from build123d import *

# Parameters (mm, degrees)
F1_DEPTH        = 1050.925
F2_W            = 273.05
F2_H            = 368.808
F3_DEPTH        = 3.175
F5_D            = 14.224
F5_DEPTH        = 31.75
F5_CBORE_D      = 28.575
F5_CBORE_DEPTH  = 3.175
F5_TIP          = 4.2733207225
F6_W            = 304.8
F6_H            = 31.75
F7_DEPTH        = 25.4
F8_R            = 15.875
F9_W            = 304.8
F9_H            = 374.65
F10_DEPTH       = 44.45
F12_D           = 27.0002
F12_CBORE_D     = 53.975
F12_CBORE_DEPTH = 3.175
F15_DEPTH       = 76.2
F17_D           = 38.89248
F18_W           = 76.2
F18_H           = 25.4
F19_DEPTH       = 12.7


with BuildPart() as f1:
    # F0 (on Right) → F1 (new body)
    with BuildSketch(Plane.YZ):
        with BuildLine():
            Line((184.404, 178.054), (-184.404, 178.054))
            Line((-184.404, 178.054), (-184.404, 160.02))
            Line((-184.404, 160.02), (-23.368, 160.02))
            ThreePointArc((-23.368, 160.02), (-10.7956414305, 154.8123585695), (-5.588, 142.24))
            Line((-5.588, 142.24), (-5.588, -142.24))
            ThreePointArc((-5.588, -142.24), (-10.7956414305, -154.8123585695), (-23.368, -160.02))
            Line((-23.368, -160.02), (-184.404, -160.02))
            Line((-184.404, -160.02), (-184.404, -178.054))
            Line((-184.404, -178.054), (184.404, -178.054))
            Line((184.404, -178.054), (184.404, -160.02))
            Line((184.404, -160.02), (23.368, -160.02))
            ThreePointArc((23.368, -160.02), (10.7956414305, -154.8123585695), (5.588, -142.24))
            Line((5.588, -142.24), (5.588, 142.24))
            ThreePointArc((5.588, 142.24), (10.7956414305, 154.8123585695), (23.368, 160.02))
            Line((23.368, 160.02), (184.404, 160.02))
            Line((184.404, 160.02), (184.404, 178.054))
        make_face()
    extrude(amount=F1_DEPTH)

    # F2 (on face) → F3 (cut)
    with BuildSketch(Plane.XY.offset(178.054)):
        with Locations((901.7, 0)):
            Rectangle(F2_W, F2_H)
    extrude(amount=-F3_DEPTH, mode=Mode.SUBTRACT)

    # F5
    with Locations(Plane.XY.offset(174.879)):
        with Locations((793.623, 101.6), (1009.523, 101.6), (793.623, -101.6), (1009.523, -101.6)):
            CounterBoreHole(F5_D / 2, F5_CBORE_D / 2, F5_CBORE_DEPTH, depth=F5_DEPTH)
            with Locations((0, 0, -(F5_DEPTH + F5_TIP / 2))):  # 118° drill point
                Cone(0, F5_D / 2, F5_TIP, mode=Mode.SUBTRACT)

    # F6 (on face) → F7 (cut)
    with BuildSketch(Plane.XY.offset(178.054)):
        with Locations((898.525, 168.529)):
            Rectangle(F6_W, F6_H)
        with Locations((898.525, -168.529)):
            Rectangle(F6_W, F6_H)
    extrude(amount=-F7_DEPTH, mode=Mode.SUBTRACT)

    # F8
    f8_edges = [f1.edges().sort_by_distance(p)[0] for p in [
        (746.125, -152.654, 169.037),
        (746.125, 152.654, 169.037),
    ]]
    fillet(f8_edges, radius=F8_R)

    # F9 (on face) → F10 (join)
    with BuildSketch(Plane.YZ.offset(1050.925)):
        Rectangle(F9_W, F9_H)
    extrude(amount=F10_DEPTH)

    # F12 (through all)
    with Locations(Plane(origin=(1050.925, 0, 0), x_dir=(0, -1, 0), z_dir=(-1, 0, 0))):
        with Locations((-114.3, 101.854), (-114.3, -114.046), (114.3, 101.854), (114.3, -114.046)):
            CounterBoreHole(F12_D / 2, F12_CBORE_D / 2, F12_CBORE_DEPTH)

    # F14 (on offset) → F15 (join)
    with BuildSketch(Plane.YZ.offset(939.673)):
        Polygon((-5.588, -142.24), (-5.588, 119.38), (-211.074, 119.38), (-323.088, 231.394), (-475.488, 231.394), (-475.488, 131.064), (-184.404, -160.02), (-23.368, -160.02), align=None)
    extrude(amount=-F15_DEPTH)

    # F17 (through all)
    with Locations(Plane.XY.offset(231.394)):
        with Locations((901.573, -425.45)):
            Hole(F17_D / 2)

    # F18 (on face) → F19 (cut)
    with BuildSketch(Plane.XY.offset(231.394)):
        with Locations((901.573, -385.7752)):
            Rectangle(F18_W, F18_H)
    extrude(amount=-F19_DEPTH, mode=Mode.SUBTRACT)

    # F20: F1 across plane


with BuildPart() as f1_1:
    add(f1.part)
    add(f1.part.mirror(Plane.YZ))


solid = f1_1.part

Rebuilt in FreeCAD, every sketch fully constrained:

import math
import FreeCAD as App
import Part
import Sketcher

V = App.Vector
Q = App.Units.Quantity


def edges_at(feature, points):
    """Names of the edges that pass closest to the given points."""
    edges = feature.Shape.Edges
    near = lambda p: min(range(len(edges)), key=lambda i: edges[i].distToShape(Part.Vertex(*p))[0])
    return sorted({f"Edge{near(p) + 1}" for p in points})


def add_polygon(sketch, points):
    """Adds a closed chain of lines whose ends are joined by coincident constraints."""
    first, n = sketch.GeometryCount, len(points)
    for a, b in zip(points, points[1:] + points[:1]):
        sketch.addGeometry(Part.LineSegment(App.Vector(*a, 0), App.Vector(*b, 0)), False)
    for i in range(n):
        sketch.addConstraint(Sketcher.Constraint("Coincident", first + i, 2, first + (i + 1) % n, 1))

doc = App.newDocument("Part")
body = doc.addObject("PartDesign::Body", "Body")

sketch1 = body.newObject("Sketcher::SketchObject", "Sketch")
sketch1.AttachmentSupport = (doc.getObject("YZ_Plane"), [""])
sketch1.MapMode = "FlatFace"
sketch1.addGeometry(Part.LineSegment(V(184, 178, 0), V(-184, 178, 0)), False)
sketch1.addGeometry(Part.LineSegment(V(-184, 178, 0), V(-184, 160, 0)), False)
sketch1.addGeometry(Part.LineSegment(V(-184, 160, 0), V(-23, 160, 0)), False)
sketch1.addGeometry(Part.ArcOfCircle(Part.Circle(V(-23, 142, 0), V(0, 0, 1), 18), math.radians(0), math.radians(90)), False)
sketch1.addGeometry(Part.LineSegment(V(-6, 142, 0), V(-6, -142, 0)), False)
sketch1.addGeometry(Part.ArcOfCircle(Part.Circle(V(-23, -142, 0), V(0, 0, 1), 18), math.radians(-90), math.radians(0)), False)
sketch1.addGeometry(Part.LineSegment(V(-23, -160, 0), V(-184, -160, 0)), False)
sketch1.addGeometry(Part.LineSegment(V(-184, -160, 0), V(-184, -178, 0)), False)
sketch1.addGeometry(Part.LineSegment(V(-184, -178, 0), V(184, -178, 0)), False)
sketch1.addGeometry(Part.LineSegment(V(184, -178, 0), V(184, -160, 0)), False)
sketch1.addGeometry(Part.LineSegment(V(184, -160, 0), V(23, -160, 0)), False)
sketch1.addGeometry(Part.ArcOfCircle(Part.Circle(V(23, -142, 0), V(0, 0, 1), 18), math.radians(180), math.radians(270)), False)
sketch1.addGeometry(Part.LineSegment(V(6, -142, 0), V(6, 142, 0)), False)
sketch1.addGeometry(Part.ArcOfCircle(Part.Circle(V(23, 142, 0), V(0, 0, 1), 18), math.radians(90), math.radians(180)), False)
sketch1.addGeometry(Part.LineSegment(V(23, 160, 0), V(184, 160, 0)), False)
sketch1.addGeometry(Part.LineSegment(V(184, 160, 0), V(184, 178, 0)), False)
sketch1.addConstraint(Sketcher.Constraint("Coincident", 0, 2, 1, 1))
sketch1.addConstraint(Sketcher.Constraint("Coincident", 1, 2, 2, 1))
sketch1.addConstraint(Sketcher.Constraint("Tangent", 2, 2, 3, 2))
sketch1.addConstraint(Sketcher.Constraint("Tangent", 3, 1, 4, 1))
sketch1.addConstraint(Sketcher.Constraint("Tangent", 4, 2, 5, 2))
sketch1.addConstraint(Sketcher.Constraint("Tangent", 5, 1, 6, 1))
sketch1.addConstraint(Sketcher.Constraint("Coincident", 6, 2, 7, 1))
sketch1.addConstraint(Sketcher.Constraint("Coincident", 7, 2, 8, 1))
sketch1.addConstraint(Sketcher.Constraint("Coincident", 8, 2, 9, 1))
sketch1.addConstraint(Sketcher.Constraint("Coincident", 9, 2, 10, 1))
sketch1.addConstraint(Sketcher.Constraint("Tangent", 10, 2, 11, 2))
sketch1.addConstraint(Sketcher.Constraint("Tangent", 11, 1, 12, 1))
sketch1.addConstraint(Sketcher.Constraint("Tangent", 12, 2, 13, 2))
sketch1.addConstraint(Sketcher.Constraint("Tangent", 13, 1, 14, 1))
sketch1.addConstraint(Sketcher.Constraint("Coincident", 14, 2, 15, 1))
sketch1.addConstraint(Sketcher.Constraint("Coincident", 15, 2, 0, 1))
sketch1.addConstraint(Sketcher.Constraint("Horizontal", 0))
sketch1.addConstraint(Sketcher.Constraint("Vertical", 1))
sketch1.addConstraint(Sketcher.Constraint("Horizontal", 2))
sketch1.addConstraint(Sketcher.Constraint("Vertical", 4))
sketch1.addConstraint(Sketcher.Constraint("Horizontal", 6))
sketch1.addConstraint(Sketcher.Constraint("Vertical", 7))
sketch1.addConstraint(Sketcher.Constraint("Horizontal", 8))
sketch1.addConstraint(Sketcher.Constraint("Vertical", 9))
sketch1.addConstraint(Sketcher.Constraint("Horizontal", 10))
sketch1.addConstraint(Sketcher.Constraint("Vertical", 12))
sketch1.addConstraint(Sketcher.Constraint("Horizontal", 14))
sketch1.addConstraint(Sketcher.Constraint("Vertical", 15))
sketch1.addConstraint(Sketcher.Constraint("Equal", 3, 5))
sketch1.addConstraint(Sketcher.Constraint("Equal", 5, 11))
sketch1.addConstraint(Sketcher.Constraint("Equal", 11, 13))
sketch1.addConstraint(Sketcher.Constraint("Symmetric", 3, 3, 11, 3, -1, 1))
sketch1.addConstraint(Sketcher.Constraint("Symmetric", 0, 2, 8, 2, -1, 1))
sketch1.addConstraint(Sketcher.Constraint("Symmetric", 6, 2, 14, 2, -1, 1))
sketch1.addConstraint(Sketcher.Constraint("Symmetric", 6, 2, 9, 2, -2))
sketch1.addConstraint(Sketcher.Constraint("Radius", 3, Q("0.7 in")))
sketch1.addConstraint(Sketcher.Constraint("DistanceY", 4, 2, 4, 1, Q("11.2 in")))
sketch1.addConstraint(Sketcher.Constraint("DistanceX", 0, 2, 0, 1, Q("14.52 in")))
sketch1.addConstraint(Sketcher.Constraint("DistanceX", 2, 1, 2, 2, Q("6.34 in")))
sketch1.addConstraint(Sketcher.Constraint("DistanceY", 1, 2, 1, 1, Q("0.71 in")))
pad1 = body.newObject("PartDesign::Pad", "Pad")
pad1.Profile = sketch1
pad1.Length = Q("41.375 in")

sketch2 = body.newObject("Sketcher::SketchObject", "Sketch001")
sketch2.AttachmentSupport = (doc.getObject("XY_Plane"), [""])
sketch2.MapMode = "FlatFace"
sketch2.AttachmentOffset = App.Placement(V(0, 0, 7.01 * 25.4), App.Rotation())
add_polygon(sketch2, [(765, 184), (765, -184), (1038, -184), (1038, 184)])
sketch2.addConstraint(Sketcher.Constraint("Vertical", 0))
sketch2.addConstraint(Sketcher.Constraint("Horizontal", 1))
sketch2.addConstraint(Sketcher.Constraint("Vertical", 2))
sketch2.addConstraint(Sketcher.Constraint("Horizontal", 3))
sketch2.addConstraint(Sketcher.Constraint("DistanceX", 1, 1, 1, 2, Q("10.75 in")))
sketch2.addConstraint(Sketcher.Constraint("DistanceY", 0, 2, 0, 1, Q("14.52 in")))
sketch2.addConstraint(Sketcher.Constraint("DistanceY", 0, 2, -1, 1, Q("7.26 in")))
sketch2.addConstraint(Sketcher.Constraint("DistanceX", -1, 1, 0, 2, Q("30.125 in")))
pocket1 = body.newObject("PartDesign::Pocket", "Pocket")
pocket1.Profile = sketch2
pocket1.Length = Q("0.125 in")

sketch3 = body.newObject("Sketcher::SketchObject", "Sketch002")
sketch3.AttachmentSupport = (doc.getObject("XY_Plane"), [""])
sketch3.MapMode = "FlatFace"
sketch3.AttachmentOffset = App.Placement(V(0, 0, 6.885 * 25.4), App.Rotation())
sketch3.addGeometry(Part.Circle(V(794, 102, 0), V(0, 0, 1), 7), False)
sketch3.addGeometry(Part.Circle(V(1010, 102, 0), V(0, 0, 1), 7), False)
sketch3.addGeometry(Part.Circle(V(794, -102, 0), V(0, 0, 1), 7), False)
sketch3.addGeometry(Part.Circle(V(1010, -102, 0), V(0, 0, 1), 7), False)
sketch3.addConstraint(Sketcher.Constraint("Equal", 0, 1))
sketch3.addConstraint(Sketcher.Constraint("Equal", 1, 2))
sketch3.addConstraint(Sketcher.Constraint("Equal", 2, 3))
sketch3.addConstraint(Sketcher.Constraint("Symmetric", 0, 3, 2, 3, -1))
sketch3.addConstraint(Sketcher.Constraint("Symmetric", 1, 3, 3, 3, -1))
sketch3.addConstraint(Sketcher.Constraint("Horizontal", 0, 3, 1, 3))
sketch3.addConstraint(Sketcher.Constraint("Diameter", 0, Q("0.56 in")))
sketch3.addConstraint(Sketcher.Constraint("DistanceY", -1, 1, 0, 3, Q("4 in")))
sketch3.addConstraint(Sketcher.Constraint("DistanceX", 0, 3, 1, 3, Q("8.5 in")))
sketch3.addConstraint(Sketcher.Constraint("DistanceX", -1, 1, 0, 3, Q("31.245 in")))
doc.recompute()
hole = body.newObject("PartDesign::Hole", "Hole")
hole.Profile = sketch3
hole.ThreadType = "None"
hole.Diameter = Q("0.56 in")
hole.DepthType = "Dimension"
hole.Depth = Q("1.25 in")
hole.DrillPoint = "Angled"
hole.DrillPointAngle = 118
hole.HoleCutType = "Counterbore"
hole.HoleCutDiameter = Q("1.125 in")
hole.HoleCutDepth = Q("0.125 in")

sketch4 = body.newObject("Sketcher::SketchObject", "Sketch003")
sketch4.AttachmentSupport = (doc.getObject("XY_Plane"), [""])
sketch4.MapMode = "FlatFace"
sketch4.AttachmentOffset = App.Placement(V(0, 0, 7.01 * 25.4), App.Rotation())
add_polygon(sketch4, [(746, 184), (746, 153), (1051, 153), (1051, 184)])
add_polygon(sketch4, [(746, -153), (746, -184), (1051, -184), (1051, -153)])
sketch4.addConstraint(Sketcher.Constraint("Vertical", 0))
sketch4.addConstraint(Sketcher.Constraint("Horizontal", 1))
sketch4.addConstraint(Sketcher.Constraint("Vertical", 2))
sketch4.addConstraint(Sketcher.Constraint("Horizontal", 3))
sketch4.addConstraint(Sketcher.Constraint("Vertical", 4))
sketch4.addConstraint(Sketcher.Constraint("Horizontal", 5))
sketch4.addConstraint(Sketcher.Constraint("Vertical", 6))
sketch4.addConstraint(Sketcher.Constraint("Horizontal", 7))
sketch4.addConstraint(Sketcher.Constraint("Symmetric", 3, 2, 4, 2, -1))
sketch4.addConstraint(Sketcher.Constraint("Symmetric", 1, 2, 6, 2, -1))
sketch4.addConstraint(Sketcher.Constraint("DistanceX", 1, 1, 1, 2, Q("12 in")))
sketch4.addConstraint(Sketcher.Constraint("DistanceY", 0, 2, 0, 1, Q("1.25 in")))
sketch4.addConstraint(Sketcher.Constraint("DistanceY", -1, 1, 0, 2, Q("6.01 in")))
sketch4.addConstraint(Sketcher.Constraint("DistanceX", -1, 1, 0, 2, Q("29.375 in")))
pocket2 = body.newObject("PartDesign::Pocket", "Pocket001")
pocket2.Profile = sketch4
pocket2.Length = Q("1 in")
doc.recompute()

fillet = body.newObject("PartDesign::Fillet", "Fillet")
fillet.Base = (pocket2, edges_at(pocket2, [(746.125, -152.654, 169.037), (746.125, 152.654, 169.037)]))
fillet.Radius = Q("0.625 in")

sketch5 = body.newObject("Sketcher::SketchObject", "Sketch004")
sketch5.AttachmentSupport = (doc.getObject("YZ_Plane"), [""])
sketch5.MapMode = "FlatFace"
sketch5.AttachmentOffset = App.Placement(V(0, 0, 41.375 * 25.4), App.Rotation())
add_polygon(sketch5, [(-152, 187), (-152, -187), (152, -187), (152, 187)])
sketch5.addConstraint(Sketcher.Constraint("Vertical", 0))
sketch5.addConstraint(Sketcher.Constraint("Horizontal", 1))
sketch5.addConstraint(Sketcher.Constraint("Vertical", 2))
sketch5.addConstraint(Sketcher.Constraint("Horizontal", 3))
sketch5.addConstraint(Sketcher.Constraint("Symmetric", 0, 2, 2, 2, -1, 1))
sketch5.addConstraint(Sketcher.Constraint("DistanceX", 1, 1, 1, 2, Q("12 in")))
sketch5.addConstraint(Sketcher.Constraint("DistanceY", 0, 2, 0, 1, Q("14.75 in")))
pad2 = body.newObject("PartDesign::Pad", "Pad001")
pad2.Profile = sketch5
pad2.Length = Q("1.75 in")

sketch6 = body.newObject("Sketcher::SketchObject", "Sketch005")
sketch6.AttachmentSupport = (doc.getObject("YZ_Plane"), [""])
sketch6.MapMode = "FlatFace"
sketch6.AttachmentOffset = App.Placement(V(0, 0, 41.375 * 25.4), App.Rotation())
sketch6.addGeometry(Part.Circle(V(114, 102, 0), V(0, 0, 1), 14), False)
sketch6.addGeometry(Part.Circle(V(114, -114, 0), V(0, 0, 1), 14), False)
sketch6.addGeometry(Part.Circle(V(-114, 102, 0), V(0, 0, 1), 14), False)
sketch6.addGeometry(Part.Circle(V(-114, -114, 0), V(0, 0, 1), 14), False)
sketch6.addConstraint(Sketcher.Constraint("Equal", 0, 1))
sketch6.addConstraint(Sketcher.Constraint("Equal", 1, 2))
sketch6.addConstraint(Sketcher.Constraint("Equal", 2, 3))
sketch6.addConstraint(Sketcher.Constraint("Symmetric", 0, 3, 2, 3, -2))
sketch6.addConstraint(Sketcher.Constraint("Symmetric", 1, 3, 3, 3, -2))
sketch6.addConstraint(Sketcher.Constraint("Vertical", 0, 3, 1, 3))
sketch6.addConstraint(Sketcher.Constraint("Diameter", 0, Q("1.063 in")))
sketch6.addConstraint(Sketcher.Constraint("DistanceX", 2, 3, 0, 3, Q("9 in")))
sketch6.addConstraint(Sketcher.Constraint("DistanceY", 1, 3, 0, 3, Q("8.5 in")))
sketch6.addConstraint(Sketcher.Constraint("DistanceY", -1, 1, 0, 3, Q("4.01 in")))
doc.recompute()
hole2 = body.newObject("PartDesign::Hole", "Hole001")
hole2.Profile = sketch6
hole2.ThreadType = "None"
hole2.Diameter = Q("1.063 in")
hole2.DepthType = "ThroughAll"
hole2.HoleCutType = "Counterbore"
hole2.HoleCutDiameter = Q("2.125 in")
hole2.HoleCutDepth = Q("0.125 in")
hole2.Reversed = True

sketch7 = body.newObject("Sketcher::SketchObject", "Sketch006")
sketch7.AttachmentSupport = (doc.getObject("YZ_Plane"), [""])
sketch7.MapMode = "FlatFace"
sketch7.AttachmentOffset = App.Placement(V(0, 0, 36.995 * 25.4), App.Rotation())
add_polygon(sketch7, [(-6, -142), (-6, 119), (-211, 119), (-323, 231), (-475, 231), (-475, 131), (-184, -160), (-23, -160)])
sketch7.addConstraint(Sketcher.Constraint("Vertical", 0))
sketch7.addConstraint(Sketcher.Constraint("Horizontal", 1))
sketch7.addConstraint(Sketcher.Constraint("Horizontal", 3))
sketch7.addConstraint(Sketcher.Constraint("Vertical", 4))
sketch7.addConstraint(Sketcher.Constraint("Horizontal", 6))
sketch7.addConstraint(Sketcher.Constraint("Parallel", 2, 5))
sketch7.addConstraint(Sketcher.Constraint("Perpendicular", 5, 7))
sketch7.addConstraint(Sketcher.Constraint("DistanceX", 3, 2, 3, 1, Q("6 in")))
sketch7.addConstraint(Sketcher.Constraint("DistanceY", 0, 1, 0, 2, Q("10.3 in")))
sketch7.addConstraint(Sketcher.Constraint("Angle", 2, Q("135 deg")))
sketch7.addConstraint(Sketcher.Constraint("DistanceY", 5, 2, 1, 2, Q("11 in")))
sketch7.addConstraint(Sketcher.Constraint("DistanceX", 1, 2, 1, 1, Q("8.09 in")))
sketch7.addConstraint(Sketcher.Constraint("DistanceX", 6, 1, 6, 2, Q("6.34 in")))
sketch7.addConstraint(Sketcher.Constraint("DistanceY", -1, 1, 0, 2, Q("4.7 in")))
sketch7.addConstraint(Sketcher.Constraint("DistanceX", 2, 2, 0, 2, Q("12.5 in")))
sketch7.addConstraint(Sketcher.Constraint("DistanceX", 0, 2, -1, 1, Q("0.22 in")))
pad3 = body.newObject("PartDesign::Pad", "Pad002")
pad3.Profile = sketch7
pad3.Length = Q("3 in")
pad3.Reversed = True

sketch8 = body.newObject("Sketcher::SketchObject", "Sketch007")
sketch8.AttachmentSupport = (doc.getObject("XY_Plane"), [""])
sketch8.MapMode = "FlatFace"
sketch8.AttachmentOffset = App.Placement(V(0, 0, 9.11 * 25.4), App.Rotation())
sketch8.addGeometry(Part.Circle(V(902, -425, 0), V(0, 0, 1), 19), False)
sketch8.addConstraint(Sketcher.Constraint("Diameter", 0, Q("1.5312 in")))
sketch8.addConstraint(Sketcher.Constraint("DistanceY", 0, 3, -1, 1, Q("16.75 in")))
sketch8.addConstraint(Sketcher.Constraint("DistanceX", -1, 1, 0, 3, Q("35.495 in")))
doc.recompute()
hole3 = body.newObject("PartDesign::Hole", "Hole002")
hole3.Profile = sketch8
hole3.ThreadType = "None"
hole3.Diameter = Q("1.5312 in")
hole3.DepthType = "ThroughAll"

sketch9 = body.newObject("Sketcher::SketchObject", "Sketch008")
sketch9.AttachmentSupport = (doc.getObject("XY_Plane"), [""])
sketch9.MapMode = "FlatFace"
sketch9.AttachmentOffset = App.Placement(V(0, 0, 9.11 * 25.4), App.Rotation())
add_polygon(sketch9, [(863, -373), (863, -398), (940, -398), (940, -373)])
sketch9.addConstraint(Sketcher.Constraint("Vertical", 0))
sketch9.addConstraint(Sketcher.Constraint("Horizontal", 1))
sketch9.addConstraint(Sketcher.Constraint("Vertical", 2))
sketch9.addConstraint(Sketcher.Constraint("Horizontal", 3))
sketch9.addConstraint(Sketcher.Constraint("DistanceX", 1, 1, 1, 2, Q("3 in")))
sketch9.addConstraint(Sketcher.Constraint("DistanceY", 0, 2, 0, 1, Q("1 in")))
sketch9.addConstraint(Sketcher.Constraint("DistanceX", -1, 1, 0, 2, Q("33.995 in")))
sketch9.addConstraint(Sketcher.Constraint("DistanceY", 0, 2, -1, 1, Q("15.688 in")))
pocket3 = body.newObject("PartDesign::Pocket", "Pocket002")
pocket3.Profile = sketch9
pocket3.Length = Q("0.5 in")
body2 = doc.addObject("PartDesign::Body", "Body001")
doc.recompute()

body2.BaseFeature = body
doc.recompute()

mirroring = doc.addObject("Part::Mirroring", "Mirroring")
mirroring.Source = body
mirroring.Base = V(0, 0, 0)
mirroring.Normal = V(1, 0, 0)
body3 = doc.addObject("PartDesign::Body", "Body002")
body3.BaseFeature = mirroring
boolean = body2.newObject("PartDesign::Boolean", "Boolean")
boolean.Type = "Fuse"
boolean.addObjects([body3])
doc.recompute()
mirroring.Visibility = False

doc.recompute()
